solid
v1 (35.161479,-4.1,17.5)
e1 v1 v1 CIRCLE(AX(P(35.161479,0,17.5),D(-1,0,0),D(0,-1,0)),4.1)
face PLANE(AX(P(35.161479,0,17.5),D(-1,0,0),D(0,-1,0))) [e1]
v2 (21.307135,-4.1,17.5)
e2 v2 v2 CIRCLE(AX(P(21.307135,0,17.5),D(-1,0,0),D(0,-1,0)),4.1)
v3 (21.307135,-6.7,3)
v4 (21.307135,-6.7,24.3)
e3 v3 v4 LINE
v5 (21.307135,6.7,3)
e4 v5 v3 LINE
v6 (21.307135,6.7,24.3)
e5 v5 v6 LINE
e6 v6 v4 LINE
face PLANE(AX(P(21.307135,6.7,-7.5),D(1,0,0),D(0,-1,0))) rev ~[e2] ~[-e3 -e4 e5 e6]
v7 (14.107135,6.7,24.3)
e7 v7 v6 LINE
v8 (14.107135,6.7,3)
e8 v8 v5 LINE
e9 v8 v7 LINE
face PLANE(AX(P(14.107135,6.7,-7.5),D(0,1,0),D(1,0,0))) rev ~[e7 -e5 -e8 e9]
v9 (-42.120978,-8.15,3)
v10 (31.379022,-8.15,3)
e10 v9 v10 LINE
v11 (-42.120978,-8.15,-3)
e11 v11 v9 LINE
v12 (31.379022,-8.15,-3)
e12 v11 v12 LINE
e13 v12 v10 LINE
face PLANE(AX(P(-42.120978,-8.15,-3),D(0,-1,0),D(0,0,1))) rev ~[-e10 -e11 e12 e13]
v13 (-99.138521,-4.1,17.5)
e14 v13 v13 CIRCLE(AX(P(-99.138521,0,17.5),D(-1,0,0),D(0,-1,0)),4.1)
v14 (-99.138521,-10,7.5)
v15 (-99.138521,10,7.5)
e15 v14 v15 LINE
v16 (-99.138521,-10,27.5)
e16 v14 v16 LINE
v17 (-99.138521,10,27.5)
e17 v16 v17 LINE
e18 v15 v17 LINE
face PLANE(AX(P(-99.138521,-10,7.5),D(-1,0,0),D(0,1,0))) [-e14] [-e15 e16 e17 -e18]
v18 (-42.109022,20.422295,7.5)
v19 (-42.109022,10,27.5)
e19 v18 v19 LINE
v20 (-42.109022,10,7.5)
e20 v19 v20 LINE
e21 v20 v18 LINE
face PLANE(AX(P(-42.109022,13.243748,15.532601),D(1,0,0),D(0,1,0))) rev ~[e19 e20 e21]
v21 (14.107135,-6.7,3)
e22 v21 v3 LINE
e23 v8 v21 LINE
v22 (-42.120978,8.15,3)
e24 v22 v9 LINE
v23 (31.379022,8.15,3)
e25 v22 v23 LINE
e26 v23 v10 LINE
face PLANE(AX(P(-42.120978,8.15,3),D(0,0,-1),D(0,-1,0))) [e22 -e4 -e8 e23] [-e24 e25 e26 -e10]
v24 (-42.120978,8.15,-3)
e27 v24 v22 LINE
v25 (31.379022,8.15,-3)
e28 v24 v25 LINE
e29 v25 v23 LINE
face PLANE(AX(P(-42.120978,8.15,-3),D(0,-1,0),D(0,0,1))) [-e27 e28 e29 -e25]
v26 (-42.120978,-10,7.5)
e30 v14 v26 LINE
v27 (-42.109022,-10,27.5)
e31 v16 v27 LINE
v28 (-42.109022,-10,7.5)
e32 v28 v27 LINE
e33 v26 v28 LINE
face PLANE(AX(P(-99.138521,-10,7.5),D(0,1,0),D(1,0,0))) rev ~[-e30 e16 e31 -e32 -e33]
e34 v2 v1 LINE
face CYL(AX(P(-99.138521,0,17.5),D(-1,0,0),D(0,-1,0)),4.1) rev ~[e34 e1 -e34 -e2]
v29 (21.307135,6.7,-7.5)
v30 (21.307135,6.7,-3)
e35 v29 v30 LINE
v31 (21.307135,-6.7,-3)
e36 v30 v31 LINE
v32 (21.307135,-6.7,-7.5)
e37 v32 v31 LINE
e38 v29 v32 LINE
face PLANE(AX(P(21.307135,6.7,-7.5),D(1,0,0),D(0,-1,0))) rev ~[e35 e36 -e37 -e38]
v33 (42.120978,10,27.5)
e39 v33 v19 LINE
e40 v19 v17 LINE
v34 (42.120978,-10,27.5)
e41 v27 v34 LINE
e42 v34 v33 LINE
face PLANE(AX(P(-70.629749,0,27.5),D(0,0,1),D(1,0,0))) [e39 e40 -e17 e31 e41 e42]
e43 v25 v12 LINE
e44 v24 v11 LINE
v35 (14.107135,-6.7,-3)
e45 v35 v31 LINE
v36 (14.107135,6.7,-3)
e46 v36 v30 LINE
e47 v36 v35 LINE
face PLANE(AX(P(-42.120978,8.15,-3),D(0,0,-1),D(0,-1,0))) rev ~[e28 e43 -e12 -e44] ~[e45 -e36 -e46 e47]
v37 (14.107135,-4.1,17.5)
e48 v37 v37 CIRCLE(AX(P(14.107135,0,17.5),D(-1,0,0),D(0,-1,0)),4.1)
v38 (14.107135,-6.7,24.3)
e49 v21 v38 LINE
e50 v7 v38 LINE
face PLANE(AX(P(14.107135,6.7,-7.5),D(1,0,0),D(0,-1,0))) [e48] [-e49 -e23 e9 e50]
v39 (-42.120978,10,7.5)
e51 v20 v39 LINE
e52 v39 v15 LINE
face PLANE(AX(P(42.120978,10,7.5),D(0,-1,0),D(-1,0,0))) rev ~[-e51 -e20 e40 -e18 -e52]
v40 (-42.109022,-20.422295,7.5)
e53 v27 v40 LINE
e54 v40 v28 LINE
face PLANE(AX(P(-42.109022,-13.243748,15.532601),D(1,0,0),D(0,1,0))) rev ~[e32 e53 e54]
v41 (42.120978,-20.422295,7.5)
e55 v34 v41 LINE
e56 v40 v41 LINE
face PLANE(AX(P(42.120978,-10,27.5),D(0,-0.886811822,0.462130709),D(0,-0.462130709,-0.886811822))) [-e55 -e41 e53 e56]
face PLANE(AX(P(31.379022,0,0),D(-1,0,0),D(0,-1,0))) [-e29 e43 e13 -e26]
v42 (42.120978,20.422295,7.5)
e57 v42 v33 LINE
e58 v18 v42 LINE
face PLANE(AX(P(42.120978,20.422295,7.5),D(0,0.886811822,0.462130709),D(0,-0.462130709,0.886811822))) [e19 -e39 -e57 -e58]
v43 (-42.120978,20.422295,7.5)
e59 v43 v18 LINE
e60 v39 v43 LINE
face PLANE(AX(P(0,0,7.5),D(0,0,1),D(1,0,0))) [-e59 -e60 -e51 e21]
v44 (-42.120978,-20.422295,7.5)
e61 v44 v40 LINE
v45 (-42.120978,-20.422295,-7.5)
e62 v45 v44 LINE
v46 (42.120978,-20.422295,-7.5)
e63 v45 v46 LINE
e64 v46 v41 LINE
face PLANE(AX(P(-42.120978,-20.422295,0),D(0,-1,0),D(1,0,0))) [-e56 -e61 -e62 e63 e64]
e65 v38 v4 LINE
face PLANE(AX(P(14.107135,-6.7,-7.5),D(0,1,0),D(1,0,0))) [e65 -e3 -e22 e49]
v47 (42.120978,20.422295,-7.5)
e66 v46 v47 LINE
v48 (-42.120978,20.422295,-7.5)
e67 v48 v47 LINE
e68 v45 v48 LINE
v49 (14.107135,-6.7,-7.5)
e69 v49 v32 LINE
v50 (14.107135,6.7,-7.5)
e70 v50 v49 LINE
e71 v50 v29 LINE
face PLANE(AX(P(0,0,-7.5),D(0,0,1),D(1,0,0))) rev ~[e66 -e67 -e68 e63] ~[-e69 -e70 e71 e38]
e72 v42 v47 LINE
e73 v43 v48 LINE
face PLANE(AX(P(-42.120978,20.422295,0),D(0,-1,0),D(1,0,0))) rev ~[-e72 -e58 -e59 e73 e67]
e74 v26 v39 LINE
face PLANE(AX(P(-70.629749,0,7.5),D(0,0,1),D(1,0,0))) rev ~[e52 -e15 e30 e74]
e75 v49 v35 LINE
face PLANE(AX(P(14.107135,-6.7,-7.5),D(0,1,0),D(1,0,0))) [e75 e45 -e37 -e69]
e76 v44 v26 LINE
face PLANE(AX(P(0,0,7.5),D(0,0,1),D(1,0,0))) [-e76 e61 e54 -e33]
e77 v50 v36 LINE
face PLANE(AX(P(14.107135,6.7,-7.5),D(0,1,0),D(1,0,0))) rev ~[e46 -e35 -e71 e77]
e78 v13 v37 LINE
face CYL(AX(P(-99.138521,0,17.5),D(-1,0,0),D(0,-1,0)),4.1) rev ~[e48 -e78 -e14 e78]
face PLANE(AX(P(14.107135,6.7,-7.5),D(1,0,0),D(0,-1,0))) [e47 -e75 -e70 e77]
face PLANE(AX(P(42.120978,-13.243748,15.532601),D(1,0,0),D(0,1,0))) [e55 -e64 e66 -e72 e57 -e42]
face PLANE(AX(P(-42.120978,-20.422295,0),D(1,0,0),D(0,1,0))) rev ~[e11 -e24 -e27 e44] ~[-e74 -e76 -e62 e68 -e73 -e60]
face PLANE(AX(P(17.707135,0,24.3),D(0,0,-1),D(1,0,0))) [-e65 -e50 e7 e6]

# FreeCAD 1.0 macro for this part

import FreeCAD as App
import Part
import Sketcher

doc = App.newDocument("Part")
body = doc.addObject("PartDesign::Body", "Body")

# Sketch on XY plane
sketch1 = body.newObject("Sketcher::SketchObject", "Sketch")
sketch1.AttachmentSupport = (doc.getObject("XY_Plane"), [""])
sketch1.MapMode = "FlatFace"
sketch1.addGeometry([
    Part.LineSegment(App.Vector(-42, 20, 0), App.Vector(-42, -20, 0)),
    Part.LineSegment(App.Vector(-42, -20, 0), App.Vector(42, -20, 0)),
    Part.LineSegment(App.Vector(42, -20, 0), App.Vector(42, 20, 0)),
    Part.LineSegment(App.Vector(42, 20, 0), App.Vector(-42, 20, 0)),
], False)
sketch1.addConstraint([
    Sketcher.Constraint("Coincident", 0, 2, 1, 1),
    Sketcher.Constraint("Coincident", 1, 2, 2, 1),
    Sketcher.Constraint("Coincident", 2, 2, 3, 1),
    Sketcher.Constraint("Coincident", 3, 2, 0, 1),
    Sketcher.Constraint("Vertical", 0),
    Sketcher.Constraint("Horizontal", 1),
    Sketcher.Constraint("Vertical", 2),
    Sketcher.Constraint("Horizontal", 3),
    Sketcher.Constraint("Symmetric", 0, 2, 2, 2, -1, 1),
    Sketcher.Constraint("DistanceY", 0, 2, 0, 1, 40.844589),
    Sketcher.Constraint("DistanceX", 1, 1, 1, 2, 84.241956),
])
pad1 = body.newObject("PartDesign::Pad", "Pad")
pad1.Profile = sketch1
pad1.Length = 15
pad1.Midplane = True

# Sketch on YZ plane
sketch2 = body.newObject("Sketcher::SketchObject", "Sketch001")
sketch2.AttachmentSupport = (doc.getObject("YZ_Plane"), [""])
sketch2.MapMode = "FlatFace"
sketch2.AttachmentOffset = App.Placement(App.Vector(0, 0, -42.120978), App.Rotation())
sketch2.addGeometry([
    Part.LineSegment(App.Vector(8, 3, 0), App.Vector(8, -3, 0)),
    Part.LineSegment(App.Vector(8, -3, 0), App.Vector(-8, -3, 0)),
    Part.LineSegment(App.Vector(-8, -3, 0), App.Vector(-8, 3, 0)),
    Part.LineSegment(App.Vector(-8, 3, 0), App.Vector(8, 3, 0)),
], False)
sketch2.addConstraint([
    Sketcher.Constraint("Coincident", 0, 2, 1, 1),
    Sketcher.Constraint("Coincident", 1, 2, 2, 1),
    Sketcher.Constraint("Coincident", 2, 2, 3, 1),
    Sketcher.Constraint("Coincident", 3, 2, 0, 1),
    Sketcher.Constraint("Vertical", 0),
    Sketcher.Constraint("Horizontal", 1),
    Sketcher.Constraint("Vertical", 2),
    Sketcher.Constraint("Horizontal", 3),
    Sketcher.Constraint("Symmetric", 0, 2, 2, 2, -1, 1),
    Sketcher.Constraint("DistanceY", 0, 2, 0, 1, 6.0),
    Sketcher.Constraint("DistanceX", 1, 2, 1, 1, 16.3),
])
pocket1 = body.newObject("PartDesign::Pocket", "Pocket")
pocket1.Profile = sketch2
pocket1.Length = 73.5
pocket1.Reversed = True

# Sketch on XY plane
sketch3 = body.newObject("Sketcher::SketchObject", "Sketch002")
sketch3.AttachmentSupport = (doc.getObject("XY_Plane"), [""])
sketch3.MapMode = "FlatFace"
sketch3.AttachmentOffset = App.Placement(App.Vector(0, 0, 7.5), App.Rotation())
sketch3.addGeometry([
    Part.LineSegment(App.Vector(-99, 10, 0), App.Vector(-99, -10, 0)),
    Part.LineSegment(App.Vector(-99, -10, 0), App.Vector(42, -10, 0)),
    Part.LineSegment(App.Vector(42, -10, 0), App.Vector(42, 10, 0)),
    Part.LineSegment(App.Vector(42, 10, 0), App.Vector(-99, 10, 0)),
], False)
sketch3.addConstraint([
    Sketcher.Constraint("Coincident", 0, 2, 1, 1),
    Sketcher.Constraint("Coincident", 1, 2, 2, 1),
    Sketcher.Constraint("Coincident", 2, 2, 3, 1),
    Sketcher.Constraint("Coincident", 3, 2, 0, 1),
    Sketcher.Constraint("Vertical", 0),
    Sketcher.Constraint("Horizontal", 1),
    Sketcher.Constraint("Vertical", 2),
    Sketcher.Constraint("Horizontal", 3),
    Sketcher.Constraint("DistanceY", 0, 2, 0, 1, 20.0),
    Sketcher.Constraint("DistanceY", 0, 2, -1, 1, 10.0),
    Sketcher.Constraint("DistanceX", 1, 1, 1, 2, 141.259499),
    Sketcher.Constraint("DistanceX", 0, 2, -1, 1, 99.138521),
])
pad2 = body.newObject("PartDesign::Pad", "Pad001")
pad2.Profile = sketch3
pad2.Length = 20

# Sketch on YZ plane
sketch4 = body.newObject("Sketcher::SketchObject", "Sketch003")
sketch4.AttachmentSupport = (doc.getObject("YZ_Plane"), [""])
sketch4.MapMode = "FlatFace"
sketch4.AttachmentOffset = App.Placement(App.Vector(0, 0, -99.138521), App.Rotation())
sketch4.addGeometry(Part.Circle(App.Vector(0, 17.5, 0), App.Vector(0, 0, 1), 4.1), False)
sketch4.addConstraint([
    Sketcher.Constraint("PointOnObject", 0, 3, -2),
    Sketcher.Constraint("Diameter", 0, 8.2),
    Sketcher.Constraint("DistanceY", -1, 1, 0, 3, 17.5),
])
pocket2 = body.newObject("PartDesign::Pocket", "Pocket001")
pocket2.Profile = sketch4
pocket2.Length = 134.3
pocket2.Reversed = True

# Sketch on YZ plane
sketch5 = body.newObject("Sketcher::SketchObject", "Sketch004")
sketch5.AttachmentSupport = (doc.getObject("YZ_Plane"), [""])
sketch5.MapMode = "FlatFace"
sketch5.AttachmentOffset = App.Placement(App.Vector(0, 0, 42.120978), App.Rotation())
sketch5.addGeometry([
    Part.LineSegment(App.Vector(-10, 8, 0), App.Vector(-10, 28, 0)),  # 0
    Part.LineSegment(App.Vector(-10, 28, 0), App.Vector(-20, 8, 0)),  # 1
    Part.LineSegment(App.Vector(-20, 8, 0), App.Vector(-10, 8, 0)),  # 2
    Part.LineSegment(App.Vector(20, 8, 0), App.Vector(10, 28, 0)),  # 3
    Part.LineSegment(App.Vector(10, 28, 0), App.Vector(10, 8, 0)),  # 4
    Part.LineSegment(App.Vector(10, 8, 0), App.Vector(20, 8, 0)),  # 5
], False)
sketch5.addConstraint([
    Sketcher.Constraint("Coincident", 0, 2, 1, 1),
    Sketcher.Constraint("Coincident", 1, 2, 2, 1),
    Sketcher.Constraint("Coincident", 2, 2, 0, 1),
    Sketcher.Constraint("Coincident", 3, 2, 4, 1),
    Sketcher.Constraint("Coincident", 4, 2, 5, 1),
    Sketcher.Constraint("Coincident", 5, 2, 3, 1),
    Sketcher.Constraint("Vertical", 0),
    Sketcher.Constraint("Horizontal", 2),
    Sketcher.Constraint("Vertical", 4),
    Sketcher.Constraint("Horizontal", 5),
    Sketcher.Constraint("Symmetric", 0, 2, 3, 2, -2),
    Sketcher.Constraint("Symmetric", 1, 2, 5, 2, -2),
    Sketcher.Constraint("DistanceY", 0, 1, 0, 2, 20.0),
    Sketcher.Constraint("DistanceX", 0, 2, -1, 1, 10.0),
    Sketcher.Constraint("DistanceY", -1, 1, 0, 2, 27.5),
    Sketcher.Constraint("Distance", 1, 22.552699),
])
pad3 = body.newObject("PartDesign::Pad", "Pad002")
pad3.Profile = sketch5
pad3.Length = 84.23
pad3.Reversed = True

# Sketch on XY plane
sketch6 = body.newObject("Sketcher::SketchObject", "Sketch005")
sketch6.AttachmentSupport = (doc.getObject("XY_Plane"), [""])
sketch6.MapMode = "FlatFace"
sketch6.AttachmentOffset = App.Placement(App.Vector(0, 0, -7.5), App.Rotation())
sketch6.addGeometry([
    Part.LineSegment(App.Vector(14, -7, 0), App.Vector(14, 7, 0)),
    Part.LineSegment(App.Vector(14, 7, 0), App.Vector(21, 7, 0)),
    Part.LineSegment(App.Vector(21, 7, 0), App.Vector(21, -7, 0)),
    Part.LineSegment(App.Vector(21, -7, 0), App.Vector(14, -7, 0)),
], False)
sketch6.addConstraint([
    Sketcher.Constraint("Coincident", 0, 2, 1, 1),
    Sketcher.Constraint("Coincident", 1, 2, 2, 1),
    Sketcher.Constraint("Coincident", 2, 2, 3, 1),
    Sketcher.Constraint("Coincident", 3, 2, 0, 1),
    Sketcher.Constraint("Vertical", 0),
    Sketcher.Constraint("Horizontal", 1),
    Sketcher.Constraint("Vertical", 2),
    Sketcher.Constraint("Horizontal", 3),
    Sketcher.Constraint("DistanceX", 1, 1, 1, 2, 7.2),
    Sketcher.Constraint("DistanceY", 0, 1, 0, 2, 13.4),
    Sketcher.Constraint("DistanceY", -1, 1, 0, 2, 6.7),
    Sketcher.Constraint("DistanceX", -1, 1, 0, 2, 14.107135),
])
pocket3 = body.newObject("PartDesign::Pocket", "Pocket002")
pocket3.Profile = sketch6
pocket3.Length = 31.8
pocket3.Reversed = True

doc.recompute()
